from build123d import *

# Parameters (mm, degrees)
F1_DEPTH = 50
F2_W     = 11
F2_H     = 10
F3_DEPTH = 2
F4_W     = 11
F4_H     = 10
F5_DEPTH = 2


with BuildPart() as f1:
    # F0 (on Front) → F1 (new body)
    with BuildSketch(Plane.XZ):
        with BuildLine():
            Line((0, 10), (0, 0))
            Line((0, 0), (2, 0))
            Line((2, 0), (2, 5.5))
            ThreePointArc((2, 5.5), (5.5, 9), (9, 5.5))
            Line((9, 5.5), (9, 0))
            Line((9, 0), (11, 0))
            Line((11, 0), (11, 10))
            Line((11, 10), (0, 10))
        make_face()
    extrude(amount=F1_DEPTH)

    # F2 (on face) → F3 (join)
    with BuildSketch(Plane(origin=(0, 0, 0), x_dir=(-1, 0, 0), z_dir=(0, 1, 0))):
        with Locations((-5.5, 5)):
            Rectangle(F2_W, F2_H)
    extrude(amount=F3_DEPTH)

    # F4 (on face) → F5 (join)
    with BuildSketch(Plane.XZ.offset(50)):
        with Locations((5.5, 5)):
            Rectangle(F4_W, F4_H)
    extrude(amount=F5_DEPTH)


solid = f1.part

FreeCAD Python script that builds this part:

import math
import FreeCAD as App
import Part
import Sketcher

V = App.Vector

doc = App.newDocument("Part")
body = doc.addObject("PartDesign::Body", "Body")

# Sketch on XZ plane
sketch1 = doc.addObject("Sketcher::SketchObject", "Sketch")
body.addObject(sketch1)
sketch1.AttachmentSupport = (doc.XZ_Plane, [""])
sketch1.MapMode = "FlatFace"
sketch1.addGeometry(Part.LineSegment(V(0, 10, 0), V(0, 0, 0)), False)
sketch1.addGeometry(Part.LineSegment(V(0, 0, 0), V(2, 0, 0)), False)
sketch1.addGeometry(Part.LineSegment(V(2, 0, 0), V(2, 5.5, 0)), False)
sketch1.addGeometry(Part.ArcOfCircle(Part.Circle(V(5.5, 5.5, 0), V(0, 0, 1), 3.5), math.radians(0), math.radians(180)), False)
sketch1.addGeometry(Part.LineSegment(V(9, 5.5, 0), V(9, 0, 0)), False)
sketch1.addGeometry(Part.LineSegment(V(9, 0, 0), V(11, 0, 0)), False)
sketch1.addGeometry(Part.LineSegment(V(11, 0, 0), V(11, 10, 0)), False)
sketch1.addGeometry(Part.LineSegment(V(11, 10, 0), V(0, 10, 0)), False)
sketch1.addConstraint(Sketcher.Constraint("Coincident", 0, 2, 1, 1))
sketch1.addConstraint(Sketcher.Constraint("Coincident", 1, 2, 2, 1))
sketch1.addConstraint(Sketcher.Constraint("Tangent", 2, 2, 3, 2))
sketch1.addConstraint(Sketcher.Constraint("Tangent", 3, 1, 4, 1))
sketch1.addConstraint(Sketcher.Constraint("Coincident", 4, 2, 5, 1))
sketch1.addConstraint(Sketcher.Constraint("Coincident", 5, 2, 6, 1))
sketch1.addConstraint(Sketcher.Constraint("Coincident", 6, 2, 7, 1))
sketch1.addConstraint(Sketcher.Constraint("Coincident", 7, 2, 0, 1))
sketch1.addConstraint(Sketcher.Constraint("Vertical", 0))
sketch1.addConstraint(Sketcher.Constraint("Horizontal", 1))
sketch1.addConstraint(Sketcher.Constraint("Vertical", 2))
sketch1.addConstraint(Sketcher.Constraint("Vertical", 4))
sketch1.addConstraint(Sketcher.Constraint("Horizontal", 5))
sketch1.addConstraint(Sketcher.Constraint("Vertical", 6))
sketch1.addConstraint(Sketcher.Constraint("Horizontal", 7))
sketch1.addConstraint(Sketcher.Constraint("Coincident", 0, 2, -1, 1))
sketch1.addConstraint(Sketcher.Constraint("PointOnObject", 4, 2, -1))
sketch1.addConstraint(Sketcher.Constraint("Equal", 1, 5))
sketch1.addConstraint(Sketcher.Constraint("Radius", 3, 3.5))
sketch1.addConstraint(Sketcher.Constraint("DistanceX", 1, 1, 1, 2, 2.0))
sketch1.addConstraint(Sketcher.Constraint("DistanceY", 0, 2, 0, 1, 10.0))
sketch1.addConstraint(Sketcher.Constraint("DistanceY", 2, 1, 2, 2, 5.5))
pad1 = doc.addObject("PartDesign::Pad", "Pad")
body.addObject(pad1)
pad1.Profile = sketch1
pad1.Length = 50

# Sketch on XZ plane
sketch2 = doc.addObject("Sketcher::SketchObject", "Sketch001")
body.addObject(sketch2)
sketch2.AttachmentSupport = (doc.XZ_Plane, [""])
sketch2.MapMode = "FlatFace"
sketch2.addGeometry(Part.LineSegment(V(11, 10, 0), V(11, 0, 0)), False)
sketch2.addGeometry(Part.LineSegment(V(11, 0, 0), V(0, 0, 0)), False)
sketch2.addGeometry(Part.LineSegment(V(0, 0, 0), V(0, 10, 0)), False)
sketch2.addGeometry(Part.LineSegment(V(0, 10, 0), V(11, 10, 0)), False)
sketch2.addConstraint(Sketcher.Constraint("Coincident", 0, 2, 1, 1))
sketch2.addConstraint(Sketcher.Constraint("Coincident", 1, 2, 2, 1))
sketch2.addConstraint(Sketcher.Constraint("Coincident", 2, 2, 3, 1))
sketch2.addConstraint(Sketcher.Constraint("Coincident", 3, 2, 0, 1))
sketch2.addConstraint(Sketcher.Constraint("Vertical", 0))
sketch2.addConstraint(Sketcher.Constraint("Horizontal", 1))
sketch2.addConstraint(Sketcher.Constraint("Vertical", 2))
sketch2.addConstraint(Sketcher.Constraint("Horizontal", 3))
sketch2.addConstraint(Sketcher.Constraint("Coincident", 1, 2, -1, 1))
sketch2.addConstraint(Sketcher.Constraint("DistanceX", 1, 2, 1, 1, 11.0))
sketch2.addConstraint(Sketcher.Constraint("DistanceY", 0, 2, 0, 1, 10.0))
pad2 = doc.addObject("PartDesign::Pad", "Pad001")
body.addObject(pad2)
pad2.Profile = sketch2
pad2.Length = 2
pad2.Reversed = True

# Sketch on XZ plane
sketch3 = doc.addObject("Sketcher::SketchObject", "Sketch002")
body.addObject(sketch3)
sketch3.AttachmentSupport = (doc.XZ_Plane, [""])
sketch3.MapMode = "FlatFace"
sketch3.AttachmentOffset = App.Placement(V(0, 0, 50), App.Rotation())
sketch3.addGeometry(Part.LineSegment(V(0, 10, 0), V(0, 0, 0)), False)
sketch3.addGeometry(Part.LineSegment(V(0, 0, 0), V(11, 0, 0)), False)
sketch3.addGeometry(Part.LineSegment(V(11, 0, 0), V(11, 10, 0)), False)
sketch3.addGeometry(Part.LineSegment(V(11, 10, 0), V(0, 10, 0)), False)
sketch3.addConstraint(Sketcher.Constraint("Coincident", 0, 2, 1, 1))
sketch3.addConstraint(Sketcher.Constraint("Coincident", 1, 2, 2, 1))
sketch3.addConstraint(Sketcher.Constraint("Coincident", 2, 2, 3, 1))
sketch3.addConstraint(Sketcher.Constraint("Coincident", 3, 2, 0, 1))
sketch3.addConstraint(Sketcher.Constraint("Vertical", 0))
sketch3.addConstraint(Sketcher.Constraint("Horizontal", 1))
sketch3.addConstraint(Sketcher.Constraint("Vertical", 2))
sketch3.addConstraint(Sketcher.Constraint("Horizontal", 3))
sketch3.addConstraint(Sketcher.Constraint("Coincident", 0, 2, -1, 1))
sketch3.addConstraint(Sketcher.Constraint("DistanceX", 1, 1, 1, 2, 11.0))
sketch3.addConstraint(Sketcher.Constraint("DistanceY", 0, 2, 0, 1, 10.0))
pad3 = doc.addObject("PartDesign::Pad", "Pad002")
body.addObject(pad3)
pad3.Profile = sketch3
pad3.Length = 2

doc.recompute()
